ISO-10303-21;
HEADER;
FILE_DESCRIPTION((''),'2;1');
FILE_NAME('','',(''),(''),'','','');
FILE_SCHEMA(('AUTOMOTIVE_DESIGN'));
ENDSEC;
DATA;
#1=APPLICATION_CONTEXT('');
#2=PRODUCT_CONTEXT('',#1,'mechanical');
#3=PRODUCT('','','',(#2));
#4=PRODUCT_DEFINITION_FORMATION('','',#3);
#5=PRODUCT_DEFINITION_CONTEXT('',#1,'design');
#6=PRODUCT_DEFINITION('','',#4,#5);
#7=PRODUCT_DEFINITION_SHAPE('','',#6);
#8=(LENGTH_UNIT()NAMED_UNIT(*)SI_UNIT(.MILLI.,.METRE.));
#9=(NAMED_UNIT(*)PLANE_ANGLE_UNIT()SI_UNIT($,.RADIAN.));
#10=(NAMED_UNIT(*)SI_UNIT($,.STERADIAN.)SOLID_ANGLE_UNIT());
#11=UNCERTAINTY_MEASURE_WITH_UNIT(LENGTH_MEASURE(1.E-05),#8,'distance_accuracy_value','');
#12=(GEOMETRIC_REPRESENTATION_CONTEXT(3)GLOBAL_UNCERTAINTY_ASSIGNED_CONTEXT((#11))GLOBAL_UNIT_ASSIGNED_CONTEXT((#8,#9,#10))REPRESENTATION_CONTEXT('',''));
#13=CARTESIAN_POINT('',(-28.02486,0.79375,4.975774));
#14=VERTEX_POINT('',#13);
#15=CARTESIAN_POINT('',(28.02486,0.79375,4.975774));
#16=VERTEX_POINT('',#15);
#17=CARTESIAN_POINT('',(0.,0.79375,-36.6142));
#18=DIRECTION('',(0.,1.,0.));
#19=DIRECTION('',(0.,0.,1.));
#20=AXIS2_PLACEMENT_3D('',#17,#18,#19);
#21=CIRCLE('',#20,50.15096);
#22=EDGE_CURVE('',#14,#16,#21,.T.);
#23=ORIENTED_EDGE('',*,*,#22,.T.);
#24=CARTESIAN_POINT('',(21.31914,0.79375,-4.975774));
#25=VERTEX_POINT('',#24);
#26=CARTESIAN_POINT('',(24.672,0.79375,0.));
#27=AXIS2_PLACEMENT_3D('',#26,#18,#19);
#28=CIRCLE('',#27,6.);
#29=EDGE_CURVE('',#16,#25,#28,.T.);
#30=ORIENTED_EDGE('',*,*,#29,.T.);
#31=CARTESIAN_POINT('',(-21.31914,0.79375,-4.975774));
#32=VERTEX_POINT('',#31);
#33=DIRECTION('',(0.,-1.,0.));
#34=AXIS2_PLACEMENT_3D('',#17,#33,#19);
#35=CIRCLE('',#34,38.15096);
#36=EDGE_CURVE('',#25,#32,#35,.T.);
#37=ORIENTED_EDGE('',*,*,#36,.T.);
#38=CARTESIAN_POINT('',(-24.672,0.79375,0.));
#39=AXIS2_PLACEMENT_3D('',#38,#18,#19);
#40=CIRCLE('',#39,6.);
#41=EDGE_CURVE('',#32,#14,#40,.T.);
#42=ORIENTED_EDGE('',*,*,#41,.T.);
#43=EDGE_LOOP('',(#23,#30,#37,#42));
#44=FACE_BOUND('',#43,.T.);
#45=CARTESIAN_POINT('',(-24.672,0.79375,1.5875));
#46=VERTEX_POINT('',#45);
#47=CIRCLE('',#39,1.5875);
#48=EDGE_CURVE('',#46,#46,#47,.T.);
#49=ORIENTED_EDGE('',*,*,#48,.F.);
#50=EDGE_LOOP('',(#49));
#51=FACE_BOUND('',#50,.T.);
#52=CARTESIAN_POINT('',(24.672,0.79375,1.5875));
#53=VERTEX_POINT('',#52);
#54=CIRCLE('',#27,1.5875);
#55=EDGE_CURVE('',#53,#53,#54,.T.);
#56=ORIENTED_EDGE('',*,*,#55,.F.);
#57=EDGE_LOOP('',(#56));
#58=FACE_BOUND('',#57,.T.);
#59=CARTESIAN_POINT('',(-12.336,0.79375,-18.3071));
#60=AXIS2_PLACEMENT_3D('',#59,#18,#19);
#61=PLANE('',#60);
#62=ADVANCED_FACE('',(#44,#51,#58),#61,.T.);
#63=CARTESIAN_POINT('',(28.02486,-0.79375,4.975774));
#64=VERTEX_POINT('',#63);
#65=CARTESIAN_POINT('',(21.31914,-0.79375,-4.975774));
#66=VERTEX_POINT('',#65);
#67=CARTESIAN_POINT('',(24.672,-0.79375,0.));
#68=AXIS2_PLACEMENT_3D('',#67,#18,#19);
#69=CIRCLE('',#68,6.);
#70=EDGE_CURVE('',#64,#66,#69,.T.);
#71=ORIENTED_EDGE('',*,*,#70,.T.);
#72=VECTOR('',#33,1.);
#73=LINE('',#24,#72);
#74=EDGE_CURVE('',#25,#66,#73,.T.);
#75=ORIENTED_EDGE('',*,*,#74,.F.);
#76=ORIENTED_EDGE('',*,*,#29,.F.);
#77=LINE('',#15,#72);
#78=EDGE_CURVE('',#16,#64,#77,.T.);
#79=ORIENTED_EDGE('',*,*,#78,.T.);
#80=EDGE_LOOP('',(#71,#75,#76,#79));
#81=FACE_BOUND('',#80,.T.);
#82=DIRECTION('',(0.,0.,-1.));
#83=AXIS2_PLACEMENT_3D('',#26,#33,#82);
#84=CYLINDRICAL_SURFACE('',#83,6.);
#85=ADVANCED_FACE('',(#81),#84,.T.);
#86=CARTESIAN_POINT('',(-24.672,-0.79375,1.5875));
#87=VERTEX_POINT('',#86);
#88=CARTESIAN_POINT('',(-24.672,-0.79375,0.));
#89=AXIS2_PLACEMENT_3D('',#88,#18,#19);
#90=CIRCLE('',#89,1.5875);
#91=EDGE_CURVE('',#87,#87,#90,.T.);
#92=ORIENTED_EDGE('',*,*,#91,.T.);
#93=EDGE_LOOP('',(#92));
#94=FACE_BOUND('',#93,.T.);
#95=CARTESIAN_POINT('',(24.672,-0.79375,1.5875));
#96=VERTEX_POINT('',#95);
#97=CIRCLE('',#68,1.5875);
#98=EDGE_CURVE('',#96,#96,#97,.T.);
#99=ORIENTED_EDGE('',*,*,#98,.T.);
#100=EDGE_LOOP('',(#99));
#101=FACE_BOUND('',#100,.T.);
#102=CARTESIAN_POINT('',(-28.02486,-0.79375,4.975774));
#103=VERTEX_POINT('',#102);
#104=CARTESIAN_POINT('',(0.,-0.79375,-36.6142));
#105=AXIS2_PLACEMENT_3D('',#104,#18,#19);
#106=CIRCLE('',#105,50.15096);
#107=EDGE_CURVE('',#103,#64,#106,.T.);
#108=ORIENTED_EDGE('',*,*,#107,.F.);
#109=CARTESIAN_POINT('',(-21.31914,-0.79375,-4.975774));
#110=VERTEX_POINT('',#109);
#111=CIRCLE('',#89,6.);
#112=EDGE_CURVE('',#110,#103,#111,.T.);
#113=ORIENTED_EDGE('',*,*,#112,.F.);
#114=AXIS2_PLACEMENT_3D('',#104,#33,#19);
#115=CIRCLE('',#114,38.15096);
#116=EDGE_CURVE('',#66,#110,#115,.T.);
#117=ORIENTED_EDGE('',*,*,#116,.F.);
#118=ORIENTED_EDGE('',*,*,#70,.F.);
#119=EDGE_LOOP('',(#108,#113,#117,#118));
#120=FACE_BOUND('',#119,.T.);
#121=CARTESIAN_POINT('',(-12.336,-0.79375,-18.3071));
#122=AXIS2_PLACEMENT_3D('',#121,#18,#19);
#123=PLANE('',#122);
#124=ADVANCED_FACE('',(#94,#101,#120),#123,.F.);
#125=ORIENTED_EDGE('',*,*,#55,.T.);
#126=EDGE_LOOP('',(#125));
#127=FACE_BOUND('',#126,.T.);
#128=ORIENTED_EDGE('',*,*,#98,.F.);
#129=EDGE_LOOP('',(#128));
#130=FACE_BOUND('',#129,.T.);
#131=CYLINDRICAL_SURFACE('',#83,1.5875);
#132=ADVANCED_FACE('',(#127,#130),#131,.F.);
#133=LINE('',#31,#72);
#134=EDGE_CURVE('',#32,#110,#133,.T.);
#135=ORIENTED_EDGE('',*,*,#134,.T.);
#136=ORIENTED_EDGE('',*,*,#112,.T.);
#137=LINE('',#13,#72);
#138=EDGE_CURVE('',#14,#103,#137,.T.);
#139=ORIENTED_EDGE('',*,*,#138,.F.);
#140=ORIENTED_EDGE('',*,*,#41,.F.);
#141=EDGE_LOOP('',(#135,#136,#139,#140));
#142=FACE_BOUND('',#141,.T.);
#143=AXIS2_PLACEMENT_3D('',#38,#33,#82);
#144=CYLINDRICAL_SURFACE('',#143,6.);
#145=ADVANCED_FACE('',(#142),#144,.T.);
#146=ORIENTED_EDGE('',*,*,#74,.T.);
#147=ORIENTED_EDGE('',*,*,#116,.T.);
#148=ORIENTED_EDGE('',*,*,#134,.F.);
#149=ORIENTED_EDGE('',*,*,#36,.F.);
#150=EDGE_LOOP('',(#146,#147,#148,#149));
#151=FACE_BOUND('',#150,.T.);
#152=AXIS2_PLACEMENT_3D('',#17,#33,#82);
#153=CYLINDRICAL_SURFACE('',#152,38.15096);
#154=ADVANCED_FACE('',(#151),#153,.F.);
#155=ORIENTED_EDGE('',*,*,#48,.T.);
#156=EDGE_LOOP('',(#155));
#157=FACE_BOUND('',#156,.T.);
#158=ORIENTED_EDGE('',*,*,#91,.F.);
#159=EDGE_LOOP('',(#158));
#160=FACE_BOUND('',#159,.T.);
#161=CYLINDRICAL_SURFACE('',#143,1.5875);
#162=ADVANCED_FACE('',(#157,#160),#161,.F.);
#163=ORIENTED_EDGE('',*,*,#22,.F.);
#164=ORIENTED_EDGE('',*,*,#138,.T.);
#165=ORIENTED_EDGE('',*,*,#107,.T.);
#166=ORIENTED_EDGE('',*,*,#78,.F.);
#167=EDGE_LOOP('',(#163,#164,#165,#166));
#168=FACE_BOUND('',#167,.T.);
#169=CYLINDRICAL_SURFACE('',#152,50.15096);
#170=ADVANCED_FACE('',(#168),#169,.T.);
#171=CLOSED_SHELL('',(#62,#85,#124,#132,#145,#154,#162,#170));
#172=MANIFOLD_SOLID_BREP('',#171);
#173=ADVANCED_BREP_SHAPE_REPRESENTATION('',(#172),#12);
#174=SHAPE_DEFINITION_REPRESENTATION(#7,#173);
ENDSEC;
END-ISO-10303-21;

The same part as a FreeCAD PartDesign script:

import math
import FreeCAD as App
import Part
import Sketcher

V = App.Vector
Q = App.Units.Quantity

doc = App.newDocument("Part")
params = doc.addObject("Spreadsheet::Sheet", "Params")
for row, (alias, value) in enumerate([
    ("sketch1_diameter", "0.125 in"),
    ("pad1_length", "0.0625 in"),
], start=1):
    params.set(f"A{row}", alias)
    params.set(f"B{row}", "=" + value)
    params.setAlias(f"B{row}", alias)

body = doc.addObject("PartDesign::Body", "Body")

sketch1 = body.newObject("Sketcher::SketchObject", "Sketch")
sketch1.AttachmentSupport = (doc.getObject("XZ_Plane"), [""])
sketch1.MapMode = "FlatFace"
sketch1.addGeometry(Part.ArcOfCircle(Part.Circle(V(0, -36.6, 0), V(0, 0, 1), 38.2), math.radians(56), math.radians(124)), False)
sketch1.addGeometry(Part.ArcOfCircle(Part.Circle(V(-24.7, 0, 0), V(0, 0, 1), 6), math.radians(124), math.radians(304)), False)
sketch1.addGeometry(Part.ArcOfCircle(Part.Circle(V(0, -36.6, 0), V(0, 0, 1), 50.2), math.radians(56), math.radians(124)), False)
sketch1.addGeometry(Part.ArcOfCircle(Part.Circle(V(24.7, 0, 0), V(0, 0, 1), 6), math.radians(-124), math.radians(56)), False)
sketch1.addGeometry(Part.Circle(V(24.7, 0, 0), V(0, 0, 1), 1.6), False)
sketch1.addGeometry(Part.Circle(V(-24.7, 0, 0), V(0, 0, 1), 1.6), False)
sketch1.addConstraint(Sketcher.Constraint("Tangent", 0, 2, 1, 2))
sketch1.addConstraint(Sketcher.Constraint("Tangent", 1, 1, 2, 2))
sketch1.addConstraint(Sketcher.Constraint("Tangent", 2, 1, 3, 2))
sketch1.addConstraint(Sketcher.Constraint("Tangent", 3, 1, 0, 1))
sketch1.addConstraint(Sketcher.Constraint("Coincident", 2, 3, 0, 3))
sketch1.addConstraint(Sketcher.Constraint("Coincident", 4, 3, 3, 3))
sketch1.addConstraint(Sketcher.Constraint("Coincident", 5, 3, 1, 3))
sketch1.addConstraint(Sketcher.Constraint("Equal", 4, 5))
sketch1.addConstraint(Sketcher.Constraint("Symmetric", 1, 3, 3, 3, -1, 1))
sketch1.addConstraint(Sketcher.Constraint("PointOnObject", 0, 3, -2))
sketch1.addConstraint(Sketcher.Constraint("Diameter", 4, Q("0.125 in")))
sketch1.addConstraint(Sketcher.Constraint("Radius", 1, Q("6 mm")))
sketch1.addConstraint(Sketcher.Constraint("Radius", 0, Q("38.15096 mm")))
sketch1.addConstraint(Sketcher.Constraint("DistanceY", 0, 3, -1, 1, Q("36.6142 mm")))
sketch1.setExpression("Constraints[10]", "Params.sketch1_diameter")
pad1 = body.newObject("PartDesign::Pad", "Pad")
pad1.Profile = sketch1
pad1.setExpression("Length", "Params.pad1_length")
pad1.Midplane = True

doc.recompute()
